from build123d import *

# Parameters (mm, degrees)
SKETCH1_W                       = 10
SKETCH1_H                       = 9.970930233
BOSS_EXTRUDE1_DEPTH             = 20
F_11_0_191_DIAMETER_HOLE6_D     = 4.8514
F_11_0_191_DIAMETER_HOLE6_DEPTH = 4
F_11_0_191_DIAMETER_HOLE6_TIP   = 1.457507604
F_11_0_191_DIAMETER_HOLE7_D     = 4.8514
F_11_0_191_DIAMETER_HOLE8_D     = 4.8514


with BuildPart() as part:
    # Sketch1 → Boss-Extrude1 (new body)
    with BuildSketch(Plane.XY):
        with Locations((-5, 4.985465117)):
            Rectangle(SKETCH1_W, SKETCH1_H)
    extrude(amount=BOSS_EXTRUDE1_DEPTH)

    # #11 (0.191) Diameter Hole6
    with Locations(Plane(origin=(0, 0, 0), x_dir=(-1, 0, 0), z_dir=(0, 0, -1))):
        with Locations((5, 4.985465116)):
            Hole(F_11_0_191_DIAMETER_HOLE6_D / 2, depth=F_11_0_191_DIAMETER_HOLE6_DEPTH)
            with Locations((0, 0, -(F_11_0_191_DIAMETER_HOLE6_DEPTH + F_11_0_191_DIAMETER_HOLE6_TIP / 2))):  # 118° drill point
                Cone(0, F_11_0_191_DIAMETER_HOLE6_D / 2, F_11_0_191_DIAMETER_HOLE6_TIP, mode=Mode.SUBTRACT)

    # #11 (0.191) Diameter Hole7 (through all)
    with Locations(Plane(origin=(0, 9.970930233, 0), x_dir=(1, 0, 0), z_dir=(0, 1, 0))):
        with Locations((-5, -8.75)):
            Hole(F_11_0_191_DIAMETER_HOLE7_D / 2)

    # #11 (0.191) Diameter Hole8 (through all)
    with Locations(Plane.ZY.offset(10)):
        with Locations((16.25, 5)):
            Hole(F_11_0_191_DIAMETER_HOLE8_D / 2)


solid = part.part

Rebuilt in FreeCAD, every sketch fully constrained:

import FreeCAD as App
import Part
import Sketcher
from FreeCAD import Vector

doc = App.newDocument("Part")
body = doc.addObject("PartDesign::Body", "Body")

sketch1 = body.newObject("Sketcher::SketchObject", "Sketch")
sketch1.AttachmentSupport = (doc.getObject("XY_Plane"), [""])
sketch1.MapMode = "FlatFace"
sketch1.addGeometry([
    Part.LineSegment(Vector(-10, 10, 0), Vector(-10, 0, 0)),
    Part.LineSegment(Vector(-10, 0, 0), Vector(0, 0, 0)),
    Part.LineSegment(Vector(0, 0, 0), Vector(0, 10, 0)),
    Part.LineSegment(Vector(0, 10, 0), Vector(-10, 10, 0)),
], False)
sketch1.addConstraint([
    Sketcher.Constraint("Coincident", 0, 2, 1, 1),
    Sketcher.Constraint("Coincident", 1, 2, 2, 1),
    Sketcher.Constraint("Coincident", 2, 2, 3, 1),
    Sketcher.Constraint("Coincident", 3, 2, 0, 1),
    Sketcher.Constraint("Vertical", 0),
    Sketcher.Constraint("Horizontal", 1),
    Sketcher.Constraint("Vertical", 2),
    Sketcher.Constraint("Horizontal", 3),
    Sketcher.Constraint("Coincident", 1, 2, -1, 1),
    Sketcher.Constraint("DistanceX", 1, 1, 1, 2, 10.0),
    Sketcher.Constraint("DistanceY", 0, 2, 0, 1, 9.97093),
])
pad1 = body.newObject("PartDesign::Pad", "Pad")
pad1.Profile = sketch1
pad1.Length = 20

sketch2 = body.newObject("Sketcher::SketchObject", "Sketch001")
sketch2.AttachmentSupport = (doc.getObject("XY_Plane"), [""])
sketch2.MapMode = "FlatFace"
sketch2.addGeometry(Part.Circle(Vector(-5, 5, 0), Vector(0, 0, 1), 2.4), False)
sketch2.addConstraint([
    Sketcher.Constraint("DistanceX", 0, 3, -1, 1, 5.0),
    Sketcher.Constraint("Diameter", 0, 4.8514),
    Sketcher.Constraint("DistanceY", -1, 1, 0, 3, 4.985465),
])
doc.recompute()
hole = body.newObject("PartDesign::Hole", "Hole")
hole.Profile = sketch2
hole.ThreadType = "None"
hole.Diameter = 4.8514
hole.DepthType = "Dimension"
hole.Depth = 4
hole.DrillPoint = "Angled"
hole.DrillPointAngle = 118
hole.Reversed = True

sketch3 = body.newObject("Sketcher::SketchObject", "Sketch002")
sketch3.AttachmentSupport = (doc.getObject("XZ_Plane"), [""])
sketch3.MapMode = "FlatFace"
sketch3.AttachmentOffset = App.Placement(Vector(0, 0, -9.97093), App.Rotation())
sketch3.addGeometry(Part.Circle(Vector(-5, 8.8, 0), Vector(0, 0, 1), 2.4), False)
sketch3.addConstraint([
    Sketcher.Constraint("DistanceX", 0, 3, -1, 1, 5.0),
    Sketcher.Constraint("Diameter", 0, 4.8514),
    Sketcher.Constraint("DistanceY", -1, 1, 0, 3, 8.75),
])
doc.recompute()
hole2 = body.newObject("PartDesign::Hole", "Hole001")
hole2.Profile = sketch3
hole2.ThreadType = "None"
hole2.Diameter = 4.8514
hole2.DepthType = "ThroughAll"
hole2.Reversed = True

sketch4 = body.newObject("Sketcher::SketchObject", "Sketch003")
sketch4.AttachmentSupport = (doc.getObject("YZ_Plane"), [""])
sketch4.MapMode = "FlatFace"
sketch4.AttachmentOffset = App.Placement(Vector(0, 0, -10), App.Rotation())
sketch4.addGeometry(Part.Circle(Vector(5, 16.2, 0), Vector(0, 0, 1), 2.4), False)
sketch4.addConstraint([
    Sketcher.Constraint("DistanceX", -1, 1, 0, 3, 5.0),
    Sketcher.Constraint("Diameter", 0, 4.8514),
    Sketcher.Constraint("DistanceY", -1, 1, 0, 3, 16.25),
])
doc.recompute()
hole3 = body.newObject("PartDesign::Hole", "Hole002")
hole3.Profile = sketch4
hole3.ThreadType = "None"
hole3.Diameter = 4.8514
hole3.DepthType = "ThroughAll"
hole3.Reversed = True

doc.recompute()
